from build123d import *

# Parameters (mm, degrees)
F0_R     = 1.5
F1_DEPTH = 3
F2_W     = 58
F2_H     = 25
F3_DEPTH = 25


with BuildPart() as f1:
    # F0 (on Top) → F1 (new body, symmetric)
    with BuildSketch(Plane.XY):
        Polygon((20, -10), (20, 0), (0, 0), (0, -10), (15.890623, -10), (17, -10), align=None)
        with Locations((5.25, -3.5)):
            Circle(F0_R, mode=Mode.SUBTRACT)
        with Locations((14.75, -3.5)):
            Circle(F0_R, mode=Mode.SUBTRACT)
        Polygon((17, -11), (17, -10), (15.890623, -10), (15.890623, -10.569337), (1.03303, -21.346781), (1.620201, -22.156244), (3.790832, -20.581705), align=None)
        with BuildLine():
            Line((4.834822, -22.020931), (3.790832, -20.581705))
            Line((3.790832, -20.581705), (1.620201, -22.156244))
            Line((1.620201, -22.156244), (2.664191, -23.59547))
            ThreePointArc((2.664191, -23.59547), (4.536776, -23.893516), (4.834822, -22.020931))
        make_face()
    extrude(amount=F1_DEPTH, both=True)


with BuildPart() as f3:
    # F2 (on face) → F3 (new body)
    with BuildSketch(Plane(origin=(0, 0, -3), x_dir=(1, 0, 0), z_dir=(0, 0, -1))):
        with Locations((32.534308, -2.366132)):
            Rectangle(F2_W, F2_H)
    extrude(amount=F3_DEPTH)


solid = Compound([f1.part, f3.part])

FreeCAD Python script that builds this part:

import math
import FreeCAD as App
import Part
import Sketcher
Q = App.Units.Quantity

doc = App.newDocument("Part")
body = doc.addObject("PartDesign::Body", "Body")

sketch1 = doc.addObject("Sketcher::SketchObject", "Sketch")
body.addObject(sketch1)
sketch1.AttachmentSupport = (doc.XY_Plane, [""])
sketch1.MapMode = "FlatFace"
sketch1.addGeometry([
    Part.LineSegment(App.Vector(20, -10, 0), App.Vector(20, 0, 0)),
    Part.LineSegment(App.Vector(20, 0, 0), App.Vector(0, 0, 0)),
    Part.LineSegment(App.Vector(0, 0, 0), App.Vector(0, -10, 0)),
    Part.LineSegment(App.Vector(0, -10, 0), App.Vector(15.890623, -10, 0)),
    Part.LineSegment(App.Vector(15.890623, -10, 0), App.Vector(15.890623, -10.569337, 0)),
    Part.LineSegment(App.Vector(15.890623, -10.569337, 0), App.Vector(1.03303, -21.346781, 0)),
    Part.LineSegment(App.Vector(1.03303, -21.346781, 0), App.Vector(1.620201, -22.156244, 0)),
    Part.LineSegment(App.Vector(1.620201, -22.156244, 0), App.Vector(2.664191, -23.59547, 0)),
    Part.ArcOfCircle(Part.Circle(App.Vector(3.749506, -22.808201, 0), App.Vector(0, 0, 1), 1.340784), math.radians(-144.043504), math.radians(35.956496)),
    Part.LineSegment(App.Vector(4.834822, -22.020931, 0), App.Vector(3.790832, -20.581705, 0)),
    Part.LineSegment(App.Vector(3.790832, -20.581705, 0), App.Vector(17, -11, 0)),
    Part.LineSegment(App.Vector(17, -11, 0), App.Vector(17, -10, 0)),
    Part.LineSegment(App.Vector(17, -10, 0), App.Vector(20, -10, 0)),
    Part.Circle(App.Vector(5.25, -3.5, 0), App.Vector(0, 0, 1), 1.5),
    Part.Circle(App.Vector(14.75, -3.5, 0), App.Vector(0, 0, 1), 1.5),
], False)
sketch1.addConstraint([
    Sketcher.Constraint("Coincident", 0, 2, 1, 1),
    Sketcher.Constraint("Coincident", 1, 2, 2, 1),
    Sketcher.Constraint("Coincident", 2, 2, 3, 1),
    Sketcher.Constraint("Coincident", 3, 2, 4, 1),
    Sketcher.Constraint("Coincident", 4, 2, 5, 1),
    Sketcher.Constraint("Coincident", 5, 2, 6, 1),
    Sketcher.Constraint("Coincident", 6, 2, 7, 1),
    Sketcher.Constraint("Tangent", 7, 2, 8, 1),
    Sketcher.Constraint("Tangent", 8, 2, 9, 1),
    Sketcher.Constraint("Coincident", 9, 2, 10, 1),
    Sketcher.Constraint("Coincident", 10, 2, 11, 1),
    Sketcher.Constraint("Coincident", 11, 2, 12, 1),
    Sketcher.Constraint("Coincident", 12, 2, 0, 1),
    Sketcher.Constraint("Vertical", 0),
    Sketcher.Constraint("Horizontal", 1),
    Sketcher.Constraint("Vertical", 2),
    Sketcher.Constraint("Horizontal", 3),
    Sketcher.Constraint("Vertical", 4),
    Sketcher.Constraint("Vertical", 11),
    Sketcher.Constraint("Horizontal", 12),
    Sketcher.Constraint("Coincident", 1, 2, -1, 1),
    Sketcher.Constraint("Equal", 13, 14),
    Sketcher.Constraint("Perpendicular", 5, 6),
    Sketcher.Constraint("Parallel", 6, 7),
    Sketcher.Constraint("Parallel", 7, 9),
    Sketcher.Constraint("Perpendicular", 9, 10),
    Sketcher.Constraint("Horizontal", 13, 3, 14, 3),
    Sketcher.Constraint("Horizontal", 3, 2, 11, 2),
    Sketcher.Constraint("Equal", 7, 9),
    Sketcher.Constraint("Diameter", 13, Q("3 mm")),
    Sketcher.Constraint("DistanceX", 1, 2, 1, 1, Q("20 mm")),
    Sketcher.Constraint("DistanceX", 12, 1, 12, 2, Q("3 mm")),
    Sketcher.Constraint("DistanceY", 0, 1, 0, 2, Q("10 mm")),
    Sketcher.Constraint("DistanceY", 11, 1, 11, 2, Q("1 mm")),
    Sketcher.Constraint("Distance", 6, Q("1 mm")),
    Sketcher.Constraint("DistanceY", 13, 3, -1, 1, Q("3.5 mm")),
    Sketcher.Constraint("DistanceX", 13, 3, 14, 3, Q("9.5 mm")),
    Sketcher.Constraint("DistanceX", -1, 1, 13, 3, Q("5.25 mm")),
    Sketcher.Constraint("Distance", 7, Q("1.778001 mm")),
    Sketcher.Constraint("Radius", 8, Q("1.340784 mm")),
    Sketcher.Constraint("DistanceY", 8, 3, -1, 1, Q("22.808201 mm")),
    Sketcher.Constraint("DistanceX", -1, 1, 6, 2, Q("1.620201 mm")),
    Sketcher.Constraint("DistanceX", 3, 1, 3, 2, Q("15.890623 mm")),
])
pad1 = doc.addObject("PartDesign::Pad", "Pad")
body.addObject(pad1)
pad1.Profile = sketch1
pad1.Length = 6
pad1.Midplane = True
body2 = doc.addObject("PartDesign::Body", "Body001")

sketch2 = doc.addObject("Sketcher::SketchObject", "Sketch001")
body2.addObject(sketch2)
sketch2.AttachmentSupport = (doc.getObject("XY_Plane001"), [""])
sketch2.MapMode = "FlatFace"
sketch2.AttachmentOffset = App.Placement(App.Vector(0, 0, -3), App.Rotation())
sketch2.addGeometry([
    Part.LineSegment(App.Vector(3.534308, -10.133868, 0), App.Vector(3.534308, 14.866132, 0)),
    Part.LineSegment(App.Vector(3.534308, 14.866132, 0), App.Vector(61.534308, 14.866132, 0)),
    Part.LineSegment(App.Vector(61.534308, 14.866132, 0), App.Vector(61.534308, -10.133868, 0)),
    Part.LineSegment(App.Vector(61.534308, -10.133868, 0), App.Vector(3.534308, -10.133868, 0)),
], False)
sketch2.addConstraint([
    Sketcher.Constraint("Coincident", 0, 2, 1, 1),
    Sketcher.Constraint("Coincident", 1, 2, 2, 1),
    Sketcher.Constraint("Coincident", 2, 2, 3, 1),
    Sketcher.Constraint("Coincident", 3, 2, 0, 1),
    Sketcher.Constraint("Vertical", 0),
    Sketcher.Constraint("Horizontal", 1),
    Sketcher.Constraint("Vertical", 2),
    Sketcher.Constraint("Horizontal", 3),
    Sketcher.Constraint("DistanceX", 1, 1, 1, 2, Q("58 mm")),
    Sketcher.Constraint("DistanceY", 0, 1, 0, 2, Q("25 mm")),
    Sketcher.Constraint("DistanceX", -1, 1, 1, 2, Q("61.534308 mm")),
    Sketcher.Constraint("DistanceY", -1, 1, 0, 2, Q("14.866132 mm")),
])
pad2 = doc.addObject("PartDesign::Pad", "Pad001")
body2.addObject(pad2)
pad2.Profile = sketch2
pad2.Length = 25
pad2.Reversed = True

doc.recompute()
